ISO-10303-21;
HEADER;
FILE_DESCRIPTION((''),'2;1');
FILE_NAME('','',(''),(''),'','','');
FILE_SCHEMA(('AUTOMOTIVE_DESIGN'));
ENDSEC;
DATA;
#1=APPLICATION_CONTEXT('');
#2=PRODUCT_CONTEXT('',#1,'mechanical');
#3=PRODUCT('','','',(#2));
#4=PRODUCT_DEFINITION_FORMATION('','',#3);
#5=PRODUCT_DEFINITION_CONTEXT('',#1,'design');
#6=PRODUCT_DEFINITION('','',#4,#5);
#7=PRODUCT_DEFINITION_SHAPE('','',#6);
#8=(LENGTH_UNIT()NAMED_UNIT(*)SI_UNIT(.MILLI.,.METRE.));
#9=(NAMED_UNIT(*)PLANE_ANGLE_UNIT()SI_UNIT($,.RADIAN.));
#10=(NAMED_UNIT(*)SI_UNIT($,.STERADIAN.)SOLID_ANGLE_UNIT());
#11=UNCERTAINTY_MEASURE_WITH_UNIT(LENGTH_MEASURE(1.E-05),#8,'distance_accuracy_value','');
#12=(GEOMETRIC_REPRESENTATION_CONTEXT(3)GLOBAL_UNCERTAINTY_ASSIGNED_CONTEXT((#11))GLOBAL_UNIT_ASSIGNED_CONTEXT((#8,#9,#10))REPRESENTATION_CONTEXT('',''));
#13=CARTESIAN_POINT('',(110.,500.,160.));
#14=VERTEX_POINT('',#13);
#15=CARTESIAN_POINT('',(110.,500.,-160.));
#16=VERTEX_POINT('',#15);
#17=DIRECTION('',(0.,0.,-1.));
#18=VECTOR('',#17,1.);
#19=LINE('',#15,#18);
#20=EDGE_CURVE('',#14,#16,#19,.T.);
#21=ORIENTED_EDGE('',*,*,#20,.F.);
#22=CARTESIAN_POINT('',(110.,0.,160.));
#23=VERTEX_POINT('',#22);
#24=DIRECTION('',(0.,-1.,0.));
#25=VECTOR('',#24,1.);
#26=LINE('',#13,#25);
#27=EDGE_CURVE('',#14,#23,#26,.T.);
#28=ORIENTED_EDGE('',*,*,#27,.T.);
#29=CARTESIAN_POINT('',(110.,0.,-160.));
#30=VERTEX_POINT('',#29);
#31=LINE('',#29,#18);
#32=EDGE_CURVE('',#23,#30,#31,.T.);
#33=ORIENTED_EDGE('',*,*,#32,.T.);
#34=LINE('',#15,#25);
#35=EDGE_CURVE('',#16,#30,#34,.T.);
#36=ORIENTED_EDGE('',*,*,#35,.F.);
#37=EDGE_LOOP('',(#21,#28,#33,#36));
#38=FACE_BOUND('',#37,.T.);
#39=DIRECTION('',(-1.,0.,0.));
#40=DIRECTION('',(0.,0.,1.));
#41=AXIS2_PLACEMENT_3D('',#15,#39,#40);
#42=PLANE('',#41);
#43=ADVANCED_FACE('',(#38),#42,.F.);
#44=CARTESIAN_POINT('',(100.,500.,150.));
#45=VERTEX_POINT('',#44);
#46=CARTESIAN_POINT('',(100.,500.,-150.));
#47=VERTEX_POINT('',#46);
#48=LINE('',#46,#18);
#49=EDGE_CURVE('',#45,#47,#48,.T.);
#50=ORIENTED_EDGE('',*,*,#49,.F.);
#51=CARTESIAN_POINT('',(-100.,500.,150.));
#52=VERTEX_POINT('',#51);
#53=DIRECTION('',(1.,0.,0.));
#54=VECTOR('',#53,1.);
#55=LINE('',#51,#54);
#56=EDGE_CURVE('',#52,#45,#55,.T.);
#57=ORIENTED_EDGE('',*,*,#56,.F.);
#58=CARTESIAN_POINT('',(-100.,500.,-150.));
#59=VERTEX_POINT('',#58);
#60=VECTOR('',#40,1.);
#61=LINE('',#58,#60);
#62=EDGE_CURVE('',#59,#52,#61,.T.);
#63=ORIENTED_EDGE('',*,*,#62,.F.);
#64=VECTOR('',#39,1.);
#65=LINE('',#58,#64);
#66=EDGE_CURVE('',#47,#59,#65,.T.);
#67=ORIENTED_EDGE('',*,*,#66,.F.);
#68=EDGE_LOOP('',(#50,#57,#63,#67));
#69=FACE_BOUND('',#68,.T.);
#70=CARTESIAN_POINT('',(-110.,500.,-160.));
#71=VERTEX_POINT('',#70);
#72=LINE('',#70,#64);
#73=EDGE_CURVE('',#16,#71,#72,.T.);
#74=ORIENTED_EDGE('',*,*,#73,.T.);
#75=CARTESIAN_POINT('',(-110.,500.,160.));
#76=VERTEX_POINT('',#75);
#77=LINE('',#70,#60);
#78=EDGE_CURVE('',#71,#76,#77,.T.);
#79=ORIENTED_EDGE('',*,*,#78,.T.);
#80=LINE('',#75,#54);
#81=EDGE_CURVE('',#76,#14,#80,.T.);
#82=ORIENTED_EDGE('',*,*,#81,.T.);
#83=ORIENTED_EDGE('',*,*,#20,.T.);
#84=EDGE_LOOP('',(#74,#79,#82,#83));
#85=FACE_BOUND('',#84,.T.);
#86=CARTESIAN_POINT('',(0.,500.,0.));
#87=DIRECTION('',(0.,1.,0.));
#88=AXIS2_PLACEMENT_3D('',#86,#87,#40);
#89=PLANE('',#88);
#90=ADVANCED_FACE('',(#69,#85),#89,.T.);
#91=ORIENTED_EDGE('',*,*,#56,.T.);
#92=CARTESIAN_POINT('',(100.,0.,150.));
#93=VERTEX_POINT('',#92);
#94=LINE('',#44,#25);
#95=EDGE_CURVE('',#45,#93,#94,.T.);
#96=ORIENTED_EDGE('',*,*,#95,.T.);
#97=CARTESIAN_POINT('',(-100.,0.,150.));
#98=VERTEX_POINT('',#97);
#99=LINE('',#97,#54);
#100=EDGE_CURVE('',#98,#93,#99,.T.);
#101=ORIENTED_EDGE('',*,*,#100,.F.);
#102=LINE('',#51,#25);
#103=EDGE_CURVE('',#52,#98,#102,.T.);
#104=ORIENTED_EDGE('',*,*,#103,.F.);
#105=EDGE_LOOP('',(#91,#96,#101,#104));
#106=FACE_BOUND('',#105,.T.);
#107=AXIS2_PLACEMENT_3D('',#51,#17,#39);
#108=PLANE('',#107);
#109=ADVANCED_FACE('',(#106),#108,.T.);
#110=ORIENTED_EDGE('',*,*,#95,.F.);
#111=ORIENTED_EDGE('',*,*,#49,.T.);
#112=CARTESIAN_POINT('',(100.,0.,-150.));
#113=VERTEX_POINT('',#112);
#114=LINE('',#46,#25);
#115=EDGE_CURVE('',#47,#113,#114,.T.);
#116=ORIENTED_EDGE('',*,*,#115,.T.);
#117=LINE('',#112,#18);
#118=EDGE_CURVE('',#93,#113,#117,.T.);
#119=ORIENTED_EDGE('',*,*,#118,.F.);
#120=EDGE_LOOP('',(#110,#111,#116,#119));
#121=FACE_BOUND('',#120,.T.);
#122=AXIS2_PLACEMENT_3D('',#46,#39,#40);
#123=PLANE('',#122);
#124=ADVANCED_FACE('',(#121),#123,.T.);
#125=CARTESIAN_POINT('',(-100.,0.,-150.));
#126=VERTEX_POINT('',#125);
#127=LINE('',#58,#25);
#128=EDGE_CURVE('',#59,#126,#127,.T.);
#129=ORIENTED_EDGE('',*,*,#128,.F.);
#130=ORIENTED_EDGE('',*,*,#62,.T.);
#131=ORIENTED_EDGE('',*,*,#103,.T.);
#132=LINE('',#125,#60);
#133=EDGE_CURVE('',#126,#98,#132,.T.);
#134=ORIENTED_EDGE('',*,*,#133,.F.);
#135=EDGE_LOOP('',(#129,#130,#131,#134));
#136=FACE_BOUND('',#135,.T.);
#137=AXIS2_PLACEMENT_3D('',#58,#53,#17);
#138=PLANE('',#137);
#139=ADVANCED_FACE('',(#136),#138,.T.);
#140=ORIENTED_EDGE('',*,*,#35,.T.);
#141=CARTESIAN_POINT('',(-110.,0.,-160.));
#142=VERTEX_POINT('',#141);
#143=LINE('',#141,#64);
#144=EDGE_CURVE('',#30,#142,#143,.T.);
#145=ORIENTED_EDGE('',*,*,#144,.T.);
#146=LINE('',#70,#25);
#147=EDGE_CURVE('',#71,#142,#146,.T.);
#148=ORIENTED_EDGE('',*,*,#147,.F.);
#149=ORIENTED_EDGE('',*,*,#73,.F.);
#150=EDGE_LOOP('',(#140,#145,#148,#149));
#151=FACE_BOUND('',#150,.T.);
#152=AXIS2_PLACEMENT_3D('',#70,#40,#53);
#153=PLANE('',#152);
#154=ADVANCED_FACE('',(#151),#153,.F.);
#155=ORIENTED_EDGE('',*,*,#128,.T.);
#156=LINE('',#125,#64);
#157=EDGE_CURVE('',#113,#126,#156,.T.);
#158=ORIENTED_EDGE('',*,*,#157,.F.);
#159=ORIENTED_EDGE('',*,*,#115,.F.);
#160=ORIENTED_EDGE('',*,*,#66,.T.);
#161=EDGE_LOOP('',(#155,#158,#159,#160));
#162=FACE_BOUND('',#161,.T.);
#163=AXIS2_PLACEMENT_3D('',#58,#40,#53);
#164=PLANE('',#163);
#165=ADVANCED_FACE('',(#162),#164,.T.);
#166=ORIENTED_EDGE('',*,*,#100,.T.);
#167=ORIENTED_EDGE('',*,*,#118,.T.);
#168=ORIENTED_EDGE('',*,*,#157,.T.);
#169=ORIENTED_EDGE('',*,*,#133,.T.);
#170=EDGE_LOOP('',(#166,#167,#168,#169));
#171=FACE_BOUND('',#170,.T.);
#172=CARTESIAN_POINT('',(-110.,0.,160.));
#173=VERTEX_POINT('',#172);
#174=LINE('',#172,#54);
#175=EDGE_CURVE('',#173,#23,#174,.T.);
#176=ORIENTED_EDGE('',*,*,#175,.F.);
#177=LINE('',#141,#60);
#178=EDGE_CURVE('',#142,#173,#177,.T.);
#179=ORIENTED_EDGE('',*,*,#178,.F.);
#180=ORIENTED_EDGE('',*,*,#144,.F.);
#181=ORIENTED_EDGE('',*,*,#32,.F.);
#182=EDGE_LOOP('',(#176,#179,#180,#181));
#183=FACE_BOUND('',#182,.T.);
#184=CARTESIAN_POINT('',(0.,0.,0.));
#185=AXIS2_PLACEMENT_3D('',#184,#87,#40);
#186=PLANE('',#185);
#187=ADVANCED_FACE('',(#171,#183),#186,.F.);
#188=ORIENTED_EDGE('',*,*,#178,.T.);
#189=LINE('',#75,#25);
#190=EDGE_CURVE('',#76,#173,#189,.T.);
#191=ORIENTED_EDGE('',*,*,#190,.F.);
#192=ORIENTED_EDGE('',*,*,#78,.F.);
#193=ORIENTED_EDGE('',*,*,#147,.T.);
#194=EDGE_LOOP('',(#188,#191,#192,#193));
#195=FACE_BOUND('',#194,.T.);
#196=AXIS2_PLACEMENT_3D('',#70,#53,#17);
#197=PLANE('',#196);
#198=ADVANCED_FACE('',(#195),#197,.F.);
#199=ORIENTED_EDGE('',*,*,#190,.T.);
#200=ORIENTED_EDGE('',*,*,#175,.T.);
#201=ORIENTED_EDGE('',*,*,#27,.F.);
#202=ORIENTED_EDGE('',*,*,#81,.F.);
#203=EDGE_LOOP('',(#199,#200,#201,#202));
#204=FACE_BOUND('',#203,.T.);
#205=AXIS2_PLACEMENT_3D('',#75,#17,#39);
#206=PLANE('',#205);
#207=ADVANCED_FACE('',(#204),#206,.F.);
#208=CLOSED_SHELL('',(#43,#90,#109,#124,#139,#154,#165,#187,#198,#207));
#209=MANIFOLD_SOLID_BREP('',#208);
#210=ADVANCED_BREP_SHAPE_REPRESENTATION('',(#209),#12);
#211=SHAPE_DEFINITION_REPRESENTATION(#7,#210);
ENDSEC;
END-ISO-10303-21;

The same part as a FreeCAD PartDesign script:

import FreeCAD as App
import Part
import Sketcher
from FreeCAD import Vector

doc = App.newDocument("Part")
body = doc.addObject("PartDesign::Body", "Body")

# Sketch on XZ plane
sketch1 = body.newObject("Sketcher::SketchObject", "Sketch")
sketch1.AttachmentSupport = (doc.getObject("XZ_Plane"), [""])
sketch1.MapMode = "FlatFace"
sketch1.addGeometry([
    Part.LineSegment(Vector(-110, -160, 0), Vector(-110, 160, 0)),  # 0
    Part.LineSegment(Vector(-110, 160, 0), Vector(110, 160, 0)),  # 1
    Part.LineSegment(Vector(110, 160, 0), Vector(110, -160, 0)),  # 2
    Part.LineSegment(Vector(110, -160, 0), Vector(-110, -160, 0)),  # 3
    Part.LineSegment(Vector(100, 150, 0), Vector(-100, 150, 0)),  # 4
    Part.LineSegment(Vector(-100, 150, 0), Vector(-100, -150, 0)),  # 5
    Part.LineSegment(Vector(-100, -150, 0), Vector(100, -150, 0)),  # 6
    Part.LineSegment(Vector(100, -150, 0), Vector(100, 150, 0)),  # 7
], False)
sketch1.addConstraint([
    Sketcher.Constraint("Coincident", 0, 2, 1, 1),
    Sketcher.Constraint("Coincident", 1, 2, 2, 1),
    Sketcher.Constraint("Coincident", 2, 2, 3, 1),
    Sketcher.Constraint("Coincident", 3, 2, 0, 1),
    Sketcher.Constraint("Coincident", 4, 2, 5, 1),
    Sketcher.Constraint("Coincident", 5, 2, 6, 1),
    Sketcher.Constraint("Coincident", 6, 2, 7, 1),
    Sketcher.Constraint("Coincident", 7, 2, 4, 1),
    Sketcher.Constraint("Vertical", 0),
    Sketcher.Constraint("Horizontal", 1),
    Sketcher.Constraint("Vertical", 2),
    Sketcher.Constraint("Horizontal", 3),
    Sketcher.Constraint("Horizontal", 4),
    Sketcher.Constraint("Vertical", 5),
    Sketcher.Constraint("Horizontal", 6),
    Sketcher.Constraint("Vertical", 7),
    Sketcher.Constraint("Symmetric", 0, 2, 2, 2, -1, 1),
    Sketcher.Constraint("Symmetric", 4, 2, 6, 2, -1, 1),
    Sketcher.Constraint("DistanceX", 1, 1, 1, 2, 220.0),
    Sketcher.Constraint("DistanceX", 4, 2, 4, 1, 200.0),
    Sketcher.Constraint("DistanceY", 0, 1, 0, 2, 320.0),
    Sketcher.Constraint("DistanceY", 5, 2, 5, 1, 300.0),
])
pad1 = body.newObject("PartDesign::Pad", "Pad")
pad1.Profile = sketch1
pad1.Length = 500
pad1.Reversed = True

doc.recompute()
